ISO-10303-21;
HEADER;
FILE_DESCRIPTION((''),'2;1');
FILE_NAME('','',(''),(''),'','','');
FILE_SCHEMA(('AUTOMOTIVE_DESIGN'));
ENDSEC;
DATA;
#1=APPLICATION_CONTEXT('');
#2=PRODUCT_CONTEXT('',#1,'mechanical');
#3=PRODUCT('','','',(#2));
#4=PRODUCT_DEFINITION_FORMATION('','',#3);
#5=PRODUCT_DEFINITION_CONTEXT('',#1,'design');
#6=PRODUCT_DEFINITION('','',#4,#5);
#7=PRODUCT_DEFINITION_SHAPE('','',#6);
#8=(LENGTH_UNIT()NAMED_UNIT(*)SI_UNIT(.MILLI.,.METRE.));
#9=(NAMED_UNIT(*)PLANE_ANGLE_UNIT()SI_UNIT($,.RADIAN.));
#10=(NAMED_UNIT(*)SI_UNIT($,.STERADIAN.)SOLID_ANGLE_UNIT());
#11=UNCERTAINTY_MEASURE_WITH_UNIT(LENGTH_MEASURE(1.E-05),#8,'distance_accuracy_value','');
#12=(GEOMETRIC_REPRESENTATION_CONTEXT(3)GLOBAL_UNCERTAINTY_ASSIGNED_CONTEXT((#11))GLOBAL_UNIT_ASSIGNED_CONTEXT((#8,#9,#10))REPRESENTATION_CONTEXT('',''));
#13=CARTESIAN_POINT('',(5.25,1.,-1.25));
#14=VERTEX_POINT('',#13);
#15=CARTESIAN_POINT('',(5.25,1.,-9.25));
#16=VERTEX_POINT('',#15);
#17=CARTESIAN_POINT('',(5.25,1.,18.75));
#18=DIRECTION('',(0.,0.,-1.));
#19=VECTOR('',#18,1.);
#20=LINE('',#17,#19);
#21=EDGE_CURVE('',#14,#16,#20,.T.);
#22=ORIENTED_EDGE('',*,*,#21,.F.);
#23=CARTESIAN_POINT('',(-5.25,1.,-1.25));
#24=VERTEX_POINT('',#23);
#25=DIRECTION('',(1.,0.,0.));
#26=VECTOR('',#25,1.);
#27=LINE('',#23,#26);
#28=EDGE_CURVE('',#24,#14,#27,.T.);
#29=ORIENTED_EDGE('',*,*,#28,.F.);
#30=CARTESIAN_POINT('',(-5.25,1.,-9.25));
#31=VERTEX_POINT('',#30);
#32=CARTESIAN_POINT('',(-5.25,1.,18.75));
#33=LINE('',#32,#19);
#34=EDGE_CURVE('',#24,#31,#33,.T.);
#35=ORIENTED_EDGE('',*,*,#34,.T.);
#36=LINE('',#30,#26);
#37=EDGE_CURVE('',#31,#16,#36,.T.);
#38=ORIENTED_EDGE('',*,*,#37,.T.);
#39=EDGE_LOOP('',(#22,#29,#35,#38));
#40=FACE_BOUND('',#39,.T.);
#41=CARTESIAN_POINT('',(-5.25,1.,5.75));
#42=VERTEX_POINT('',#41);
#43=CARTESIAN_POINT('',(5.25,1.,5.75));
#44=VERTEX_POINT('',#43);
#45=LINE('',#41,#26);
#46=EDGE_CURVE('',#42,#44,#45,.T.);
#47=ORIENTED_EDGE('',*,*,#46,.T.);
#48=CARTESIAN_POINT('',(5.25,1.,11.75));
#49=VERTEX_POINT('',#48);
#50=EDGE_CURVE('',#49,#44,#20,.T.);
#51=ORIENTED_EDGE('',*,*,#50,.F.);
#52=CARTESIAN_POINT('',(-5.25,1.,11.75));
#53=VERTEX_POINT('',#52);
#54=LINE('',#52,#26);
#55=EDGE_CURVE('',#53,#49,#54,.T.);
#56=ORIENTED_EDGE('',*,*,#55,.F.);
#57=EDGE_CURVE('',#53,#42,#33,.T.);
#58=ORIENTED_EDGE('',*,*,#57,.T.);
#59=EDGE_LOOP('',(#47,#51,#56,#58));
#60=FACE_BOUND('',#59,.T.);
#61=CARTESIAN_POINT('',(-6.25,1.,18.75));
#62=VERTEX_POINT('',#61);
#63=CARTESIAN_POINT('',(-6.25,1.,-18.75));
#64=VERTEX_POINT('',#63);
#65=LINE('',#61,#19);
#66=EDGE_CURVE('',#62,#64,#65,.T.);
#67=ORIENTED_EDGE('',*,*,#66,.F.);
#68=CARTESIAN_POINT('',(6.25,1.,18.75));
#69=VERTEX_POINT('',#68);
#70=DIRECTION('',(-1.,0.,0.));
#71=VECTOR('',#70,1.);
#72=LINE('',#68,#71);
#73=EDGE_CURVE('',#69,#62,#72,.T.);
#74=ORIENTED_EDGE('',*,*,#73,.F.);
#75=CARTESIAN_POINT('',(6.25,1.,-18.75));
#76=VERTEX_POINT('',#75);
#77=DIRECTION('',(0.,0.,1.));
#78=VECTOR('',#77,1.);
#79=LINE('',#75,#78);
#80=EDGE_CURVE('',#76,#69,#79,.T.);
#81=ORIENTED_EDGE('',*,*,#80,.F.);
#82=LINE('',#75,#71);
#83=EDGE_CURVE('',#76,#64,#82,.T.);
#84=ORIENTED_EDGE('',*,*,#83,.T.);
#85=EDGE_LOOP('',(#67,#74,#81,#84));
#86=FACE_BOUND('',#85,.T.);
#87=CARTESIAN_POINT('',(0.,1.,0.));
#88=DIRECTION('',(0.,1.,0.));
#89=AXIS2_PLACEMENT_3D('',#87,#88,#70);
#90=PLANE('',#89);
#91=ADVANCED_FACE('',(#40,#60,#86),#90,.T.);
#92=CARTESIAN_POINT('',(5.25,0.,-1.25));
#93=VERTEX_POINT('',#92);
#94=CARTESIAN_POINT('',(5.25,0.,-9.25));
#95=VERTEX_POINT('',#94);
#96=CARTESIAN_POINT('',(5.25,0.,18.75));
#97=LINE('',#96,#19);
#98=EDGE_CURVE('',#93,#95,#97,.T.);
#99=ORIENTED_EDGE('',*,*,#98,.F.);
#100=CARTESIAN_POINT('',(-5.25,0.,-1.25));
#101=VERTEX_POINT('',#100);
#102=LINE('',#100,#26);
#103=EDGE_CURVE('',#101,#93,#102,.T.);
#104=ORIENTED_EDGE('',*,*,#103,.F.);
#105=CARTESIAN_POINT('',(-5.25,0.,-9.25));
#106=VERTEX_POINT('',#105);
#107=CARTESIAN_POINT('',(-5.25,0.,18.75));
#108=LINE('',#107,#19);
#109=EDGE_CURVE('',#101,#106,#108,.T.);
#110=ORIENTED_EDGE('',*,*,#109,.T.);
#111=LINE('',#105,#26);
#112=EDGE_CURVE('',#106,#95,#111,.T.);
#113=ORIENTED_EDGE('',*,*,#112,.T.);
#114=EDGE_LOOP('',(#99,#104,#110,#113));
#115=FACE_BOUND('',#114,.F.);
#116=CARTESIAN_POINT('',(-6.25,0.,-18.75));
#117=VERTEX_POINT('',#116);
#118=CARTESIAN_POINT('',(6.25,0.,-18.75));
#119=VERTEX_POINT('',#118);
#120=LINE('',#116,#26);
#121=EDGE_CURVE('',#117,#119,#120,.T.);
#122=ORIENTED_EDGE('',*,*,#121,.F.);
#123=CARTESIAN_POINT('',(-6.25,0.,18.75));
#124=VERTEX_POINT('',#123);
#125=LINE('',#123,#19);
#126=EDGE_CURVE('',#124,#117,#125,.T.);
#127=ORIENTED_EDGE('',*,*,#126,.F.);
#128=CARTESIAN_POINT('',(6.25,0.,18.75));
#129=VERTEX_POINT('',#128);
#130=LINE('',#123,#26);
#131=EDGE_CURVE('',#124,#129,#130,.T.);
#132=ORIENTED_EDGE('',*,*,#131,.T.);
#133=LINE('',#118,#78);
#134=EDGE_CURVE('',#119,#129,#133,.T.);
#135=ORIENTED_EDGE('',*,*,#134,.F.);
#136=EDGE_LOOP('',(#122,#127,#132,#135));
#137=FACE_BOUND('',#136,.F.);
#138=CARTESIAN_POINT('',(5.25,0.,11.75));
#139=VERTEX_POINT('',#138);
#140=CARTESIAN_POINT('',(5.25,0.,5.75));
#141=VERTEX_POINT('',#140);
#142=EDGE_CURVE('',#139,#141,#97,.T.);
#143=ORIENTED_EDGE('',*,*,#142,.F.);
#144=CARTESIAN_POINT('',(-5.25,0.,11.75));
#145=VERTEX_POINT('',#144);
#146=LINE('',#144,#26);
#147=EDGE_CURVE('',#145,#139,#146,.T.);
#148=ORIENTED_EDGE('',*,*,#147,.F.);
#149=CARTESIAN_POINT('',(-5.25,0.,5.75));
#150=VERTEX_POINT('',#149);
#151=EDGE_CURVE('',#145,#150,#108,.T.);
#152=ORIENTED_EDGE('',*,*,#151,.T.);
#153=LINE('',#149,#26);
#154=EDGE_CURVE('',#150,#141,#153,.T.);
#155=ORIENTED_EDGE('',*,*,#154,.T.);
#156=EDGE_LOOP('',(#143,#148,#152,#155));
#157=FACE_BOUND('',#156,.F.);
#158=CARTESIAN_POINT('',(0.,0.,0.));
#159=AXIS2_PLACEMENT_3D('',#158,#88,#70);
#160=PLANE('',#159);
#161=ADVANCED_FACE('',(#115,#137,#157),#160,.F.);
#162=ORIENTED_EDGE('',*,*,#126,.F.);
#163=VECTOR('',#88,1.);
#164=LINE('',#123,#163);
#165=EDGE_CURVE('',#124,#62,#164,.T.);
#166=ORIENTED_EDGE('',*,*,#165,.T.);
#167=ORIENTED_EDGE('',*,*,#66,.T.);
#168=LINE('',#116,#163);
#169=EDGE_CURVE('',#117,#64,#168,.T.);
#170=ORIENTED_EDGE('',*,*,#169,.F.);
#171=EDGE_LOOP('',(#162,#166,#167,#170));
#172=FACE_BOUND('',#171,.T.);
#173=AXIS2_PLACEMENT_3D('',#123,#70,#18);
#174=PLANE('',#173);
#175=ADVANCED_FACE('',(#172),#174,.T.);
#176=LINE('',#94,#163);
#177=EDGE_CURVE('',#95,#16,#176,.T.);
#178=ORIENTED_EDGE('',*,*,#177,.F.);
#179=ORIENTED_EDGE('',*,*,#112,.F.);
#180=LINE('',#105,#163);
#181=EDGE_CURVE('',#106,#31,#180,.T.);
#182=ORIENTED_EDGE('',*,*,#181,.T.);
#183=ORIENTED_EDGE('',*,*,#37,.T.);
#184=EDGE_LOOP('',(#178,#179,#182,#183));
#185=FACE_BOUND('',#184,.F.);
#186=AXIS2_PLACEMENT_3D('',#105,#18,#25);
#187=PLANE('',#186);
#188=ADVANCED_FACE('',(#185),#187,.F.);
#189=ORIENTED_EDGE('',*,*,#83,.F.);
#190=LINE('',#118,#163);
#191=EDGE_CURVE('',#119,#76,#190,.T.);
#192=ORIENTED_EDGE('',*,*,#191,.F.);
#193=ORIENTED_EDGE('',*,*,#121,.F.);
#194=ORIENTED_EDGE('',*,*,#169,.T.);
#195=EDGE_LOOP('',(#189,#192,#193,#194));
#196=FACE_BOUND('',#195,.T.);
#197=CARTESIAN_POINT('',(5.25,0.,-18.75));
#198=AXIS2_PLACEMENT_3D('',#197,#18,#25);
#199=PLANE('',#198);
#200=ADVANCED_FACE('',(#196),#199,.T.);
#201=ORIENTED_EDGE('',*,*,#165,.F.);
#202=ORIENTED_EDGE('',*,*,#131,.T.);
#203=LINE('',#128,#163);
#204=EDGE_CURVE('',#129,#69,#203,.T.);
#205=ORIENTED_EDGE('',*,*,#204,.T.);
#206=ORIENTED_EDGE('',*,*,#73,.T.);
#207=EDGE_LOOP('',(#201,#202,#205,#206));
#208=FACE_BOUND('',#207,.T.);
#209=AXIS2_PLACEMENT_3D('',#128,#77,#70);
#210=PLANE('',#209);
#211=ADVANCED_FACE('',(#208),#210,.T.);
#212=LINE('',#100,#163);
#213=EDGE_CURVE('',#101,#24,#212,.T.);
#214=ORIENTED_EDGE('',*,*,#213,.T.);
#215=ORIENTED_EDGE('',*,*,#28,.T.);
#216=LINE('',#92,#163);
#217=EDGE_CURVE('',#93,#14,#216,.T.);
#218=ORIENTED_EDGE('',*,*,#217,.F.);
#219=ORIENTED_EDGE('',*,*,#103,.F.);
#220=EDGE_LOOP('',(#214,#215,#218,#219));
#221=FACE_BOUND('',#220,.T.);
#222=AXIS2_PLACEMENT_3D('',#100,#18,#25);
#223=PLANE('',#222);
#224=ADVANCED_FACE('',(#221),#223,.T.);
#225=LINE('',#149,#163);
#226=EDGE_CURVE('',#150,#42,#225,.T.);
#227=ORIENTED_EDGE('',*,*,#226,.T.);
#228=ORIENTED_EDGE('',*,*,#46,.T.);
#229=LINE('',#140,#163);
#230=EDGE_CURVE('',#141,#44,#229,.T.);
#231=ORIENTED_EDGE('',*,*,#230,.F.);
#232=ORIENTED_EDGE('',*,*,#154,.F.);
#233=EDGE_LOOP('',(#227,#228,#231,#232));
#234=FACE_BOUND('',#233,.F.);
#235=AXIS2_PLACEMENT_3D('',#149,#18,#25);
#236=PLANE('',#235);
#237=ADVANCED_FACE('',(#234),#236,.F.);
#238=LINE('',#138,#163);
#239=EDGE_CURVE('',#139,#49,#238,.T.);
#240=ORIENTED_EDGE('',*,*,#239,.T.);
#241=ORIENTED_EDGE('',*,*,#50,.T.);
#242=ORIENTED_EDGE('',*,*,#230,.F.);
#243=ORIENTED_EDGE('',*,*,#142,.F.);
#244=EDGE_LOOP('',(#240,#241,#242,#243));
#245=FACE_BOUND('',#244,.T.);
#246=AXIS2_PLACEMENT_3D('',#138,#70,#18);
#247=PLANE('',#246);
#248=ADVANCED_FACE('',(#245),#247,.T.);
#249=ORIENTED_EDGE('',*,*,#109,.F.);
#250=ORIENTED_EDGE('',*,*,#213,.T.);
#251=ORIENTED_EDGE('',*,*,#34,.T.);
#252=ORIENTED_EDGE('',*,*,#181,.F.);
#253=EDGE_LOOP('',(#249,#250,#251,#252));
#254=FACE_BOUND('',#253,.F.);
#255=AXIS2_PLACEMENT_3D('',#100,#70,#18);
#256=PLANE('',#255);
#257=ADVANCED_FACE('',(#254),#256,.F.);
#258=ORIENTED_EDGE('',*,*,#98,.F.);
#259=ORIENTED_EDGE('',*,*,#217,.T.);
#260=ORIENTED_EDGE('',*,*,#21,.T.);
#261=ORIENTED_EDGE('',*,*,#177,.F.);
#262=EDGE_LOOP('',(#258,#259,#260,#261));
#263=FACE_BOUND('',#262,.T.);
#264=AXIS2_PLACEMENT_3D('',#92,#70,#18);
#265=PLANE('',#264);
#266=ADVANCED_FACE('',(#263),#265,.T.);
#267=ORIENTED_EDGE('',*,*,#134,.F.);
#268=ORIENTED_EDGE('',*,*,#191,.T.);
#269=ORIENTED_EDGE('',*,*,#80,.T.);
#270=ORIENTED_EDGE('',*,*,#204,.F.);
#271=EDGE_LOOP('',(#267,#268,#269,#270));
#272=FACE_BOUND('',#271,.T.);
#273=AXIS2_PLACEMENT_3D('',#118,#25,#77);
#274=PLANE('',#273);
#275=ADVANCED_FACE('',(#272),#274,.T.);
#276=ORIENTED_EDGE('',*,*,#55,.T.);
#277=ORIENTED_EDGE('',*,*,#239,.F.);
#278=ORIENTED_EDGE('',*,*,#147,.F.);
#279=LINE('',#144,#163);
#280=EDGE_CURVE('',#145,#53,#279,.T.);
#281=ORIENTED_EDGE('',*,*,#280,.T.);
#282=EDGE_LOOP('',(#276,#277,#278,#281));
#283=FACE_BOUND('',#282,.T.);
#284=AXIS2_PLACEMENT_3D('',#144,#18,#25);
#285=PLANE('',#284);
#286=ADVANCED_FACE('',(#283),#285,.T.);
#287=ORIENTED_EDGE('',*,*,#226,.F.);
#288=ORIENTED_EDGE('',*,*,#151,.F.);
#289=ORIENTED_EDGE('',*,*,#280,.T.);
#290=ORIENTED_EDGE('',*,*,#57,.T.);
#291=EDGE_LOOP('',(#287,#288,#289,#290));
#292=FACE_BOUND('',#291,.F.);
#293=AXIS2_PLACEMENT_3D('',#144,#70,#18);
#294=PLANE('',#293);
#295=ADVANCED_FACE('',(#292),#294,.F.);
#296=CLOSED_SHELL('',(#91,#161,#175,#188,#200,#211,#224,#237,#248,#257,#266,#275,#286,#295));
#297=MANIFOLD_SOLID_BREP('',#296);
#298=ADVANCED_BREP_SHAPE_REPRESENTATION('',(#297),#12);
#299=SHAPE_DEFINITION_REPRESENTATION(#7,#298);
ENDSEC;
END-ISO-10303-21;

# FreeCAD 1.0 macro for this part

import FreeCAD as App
import Part
import Sketcher
from FreeCAD import Vector


def add_polygon(sketch, points):
    """Adds a closed chain of lines whose ends are joined by coincident constraints."""
    first, n = sketch.GeometryCount, len(points)
    for a, b in zip(points, points[1:] + points[:1]):
        sketch.addGeometry(Part.LineSegment(App.Vector(*a, 0), App.Vector(*b, 0)), False)
    for i in range(n):
        sketch.addConstraint(Sketcher.Constraint("Coincident", first + i, 2, first + (i + 1) % n, 1))

doc = App.newDocument("Part")
params = doc.addObject("Spreadsheet::Sheet", "Params")
for row, (alias, value) in enumerate([
    ("sketch1_width", "12.5 mm"),
    ("sketch1_height", "37.5 mm"),
    ("sketch1_height2", "6 mm"),
    ("sketch1_height3", "8 mm"),
    ("sketch1_width2", "10.5 mm"),
    ("pad1_length", "1 mm"),
], start=1):
    params.set(f"A{row}", alias)
    params.set(f"B{row}", "=" + value)
    params.setAlias(f"B{row}", alias)

body = doc.addObject("PartDesign::Body", "Body")

# Sketch on XZ plane
sketch1 = body.newObject("Sketcher::SketchObject", "Sketch")
sketch1.AttachmentSupport = (doc.getObject("XZ_Plane"), [""])
sketch1.MapMode = "FlatFace"
add_polygon(sketch1, [(6, 19), (6, -19), (-6, -19), (-6, 19)])  # lines 0-3
add_polygon(sketch1, [(5, 6), (5, 12), (-5, 12), (-5, 6)])  # lines 4-7
add_polygon(sketch1, [(5, -9), (5, -1), (-5, -1), (-5, -9)])  # lines 8-11
sketch1.addConstraint(Sketcher.Constraint("Vertical", 0))
sketch1.addConstraint(Sketcher.Constraint("Horizontal", 1))
sketch1.addConstraint(Sketcher.Constraint("Vertical", 2))
sketch1.addConstraint(Sketcher.Constraint("Horizontal", 3))
sketch1.addConstraint(Sketcher.Constraint("Vertical", 4))
sketch1.addConstraint(Sketcher.Constraint("Horizontal", 5))
sketch1.addConstraint(Sketcher.Constraint("Vertical", 6))
sketch1.addConstraint(Sketcher.Constraint("Horizontal", 7))
sketch1.addConstraint(Sketcher.Constraint("Vertical", 8))
sketch1.addConstraint(Sketcher.Constraint("Horizontal", 9))
sketch1.addConstraint(Sketcher.Constraint("Vertical", 10))
sketch1.addConstraint(Sketcher.Constraint("Horizontal", 11))
sketch1.addConstraint(Sketcher.Constraint("Symmetric", 0, 2, 2, 2, -1, 1))
sketch1.addConstraint(Sketcher.Constraint("Vertical", 7, 2, 8, 2))
sketch1.addConstraint(Sketcher.Constraint("Vertical", 6, 2, 9, 2))
sketch1.addConstraint(Sketcher.Constraint("DistanceX", 1, 2, 1, 1, 12.5))
sketch1.addConstraint(Sketcher.Constraint("DistanceY", 0, 2, 0, 1, 37.5))
sketch1.addConstraint(Sketcher.Constraint("DistanceY", 4, 1, 4, 2, 6.0))
sketch1.addConstraint(Sketcher.Constraint("DistanceY", 8, 1, 8, 2, 8.0))
sketch1.addConstraint(Sketcher.Constraint("DistanceX", 5, 2, 5, 1, 10.5))
sketch1.addConstraint(Sketcher.Constraint("DistanceX", 4, 2, 3, 2, 1.0))
sketch1.addConstraint(Sketcher.Constraint("DistanceY", 4, 2, 3, 2, 7.0))
sketch1.addConstraint(Sketcher.Constraint("DistanceY", 8, 2, 7, 2, 7.0))
sketch1.setExpression("Constraints[27]", "Params.sketch1_width")
sketch1.setExpression("Constraints[28]", "Params.sketch1_height")
sketch1.setExpression("Constraints[29]", "Params.sketch1_height2")
sketch1.setExpression("Constraints[30]", "Params.sketch1_height3")
sketch1.setExpression("Constraints[31]", "Params.sketch1_width2")
pad1 = body.newObject("PartDesign::Pad", "Pad")
pad1.Profile = sketch1
pad1.setExpression("Length", "Params.pad1_length")
pad1.Reversed = True

doc.recompute()
